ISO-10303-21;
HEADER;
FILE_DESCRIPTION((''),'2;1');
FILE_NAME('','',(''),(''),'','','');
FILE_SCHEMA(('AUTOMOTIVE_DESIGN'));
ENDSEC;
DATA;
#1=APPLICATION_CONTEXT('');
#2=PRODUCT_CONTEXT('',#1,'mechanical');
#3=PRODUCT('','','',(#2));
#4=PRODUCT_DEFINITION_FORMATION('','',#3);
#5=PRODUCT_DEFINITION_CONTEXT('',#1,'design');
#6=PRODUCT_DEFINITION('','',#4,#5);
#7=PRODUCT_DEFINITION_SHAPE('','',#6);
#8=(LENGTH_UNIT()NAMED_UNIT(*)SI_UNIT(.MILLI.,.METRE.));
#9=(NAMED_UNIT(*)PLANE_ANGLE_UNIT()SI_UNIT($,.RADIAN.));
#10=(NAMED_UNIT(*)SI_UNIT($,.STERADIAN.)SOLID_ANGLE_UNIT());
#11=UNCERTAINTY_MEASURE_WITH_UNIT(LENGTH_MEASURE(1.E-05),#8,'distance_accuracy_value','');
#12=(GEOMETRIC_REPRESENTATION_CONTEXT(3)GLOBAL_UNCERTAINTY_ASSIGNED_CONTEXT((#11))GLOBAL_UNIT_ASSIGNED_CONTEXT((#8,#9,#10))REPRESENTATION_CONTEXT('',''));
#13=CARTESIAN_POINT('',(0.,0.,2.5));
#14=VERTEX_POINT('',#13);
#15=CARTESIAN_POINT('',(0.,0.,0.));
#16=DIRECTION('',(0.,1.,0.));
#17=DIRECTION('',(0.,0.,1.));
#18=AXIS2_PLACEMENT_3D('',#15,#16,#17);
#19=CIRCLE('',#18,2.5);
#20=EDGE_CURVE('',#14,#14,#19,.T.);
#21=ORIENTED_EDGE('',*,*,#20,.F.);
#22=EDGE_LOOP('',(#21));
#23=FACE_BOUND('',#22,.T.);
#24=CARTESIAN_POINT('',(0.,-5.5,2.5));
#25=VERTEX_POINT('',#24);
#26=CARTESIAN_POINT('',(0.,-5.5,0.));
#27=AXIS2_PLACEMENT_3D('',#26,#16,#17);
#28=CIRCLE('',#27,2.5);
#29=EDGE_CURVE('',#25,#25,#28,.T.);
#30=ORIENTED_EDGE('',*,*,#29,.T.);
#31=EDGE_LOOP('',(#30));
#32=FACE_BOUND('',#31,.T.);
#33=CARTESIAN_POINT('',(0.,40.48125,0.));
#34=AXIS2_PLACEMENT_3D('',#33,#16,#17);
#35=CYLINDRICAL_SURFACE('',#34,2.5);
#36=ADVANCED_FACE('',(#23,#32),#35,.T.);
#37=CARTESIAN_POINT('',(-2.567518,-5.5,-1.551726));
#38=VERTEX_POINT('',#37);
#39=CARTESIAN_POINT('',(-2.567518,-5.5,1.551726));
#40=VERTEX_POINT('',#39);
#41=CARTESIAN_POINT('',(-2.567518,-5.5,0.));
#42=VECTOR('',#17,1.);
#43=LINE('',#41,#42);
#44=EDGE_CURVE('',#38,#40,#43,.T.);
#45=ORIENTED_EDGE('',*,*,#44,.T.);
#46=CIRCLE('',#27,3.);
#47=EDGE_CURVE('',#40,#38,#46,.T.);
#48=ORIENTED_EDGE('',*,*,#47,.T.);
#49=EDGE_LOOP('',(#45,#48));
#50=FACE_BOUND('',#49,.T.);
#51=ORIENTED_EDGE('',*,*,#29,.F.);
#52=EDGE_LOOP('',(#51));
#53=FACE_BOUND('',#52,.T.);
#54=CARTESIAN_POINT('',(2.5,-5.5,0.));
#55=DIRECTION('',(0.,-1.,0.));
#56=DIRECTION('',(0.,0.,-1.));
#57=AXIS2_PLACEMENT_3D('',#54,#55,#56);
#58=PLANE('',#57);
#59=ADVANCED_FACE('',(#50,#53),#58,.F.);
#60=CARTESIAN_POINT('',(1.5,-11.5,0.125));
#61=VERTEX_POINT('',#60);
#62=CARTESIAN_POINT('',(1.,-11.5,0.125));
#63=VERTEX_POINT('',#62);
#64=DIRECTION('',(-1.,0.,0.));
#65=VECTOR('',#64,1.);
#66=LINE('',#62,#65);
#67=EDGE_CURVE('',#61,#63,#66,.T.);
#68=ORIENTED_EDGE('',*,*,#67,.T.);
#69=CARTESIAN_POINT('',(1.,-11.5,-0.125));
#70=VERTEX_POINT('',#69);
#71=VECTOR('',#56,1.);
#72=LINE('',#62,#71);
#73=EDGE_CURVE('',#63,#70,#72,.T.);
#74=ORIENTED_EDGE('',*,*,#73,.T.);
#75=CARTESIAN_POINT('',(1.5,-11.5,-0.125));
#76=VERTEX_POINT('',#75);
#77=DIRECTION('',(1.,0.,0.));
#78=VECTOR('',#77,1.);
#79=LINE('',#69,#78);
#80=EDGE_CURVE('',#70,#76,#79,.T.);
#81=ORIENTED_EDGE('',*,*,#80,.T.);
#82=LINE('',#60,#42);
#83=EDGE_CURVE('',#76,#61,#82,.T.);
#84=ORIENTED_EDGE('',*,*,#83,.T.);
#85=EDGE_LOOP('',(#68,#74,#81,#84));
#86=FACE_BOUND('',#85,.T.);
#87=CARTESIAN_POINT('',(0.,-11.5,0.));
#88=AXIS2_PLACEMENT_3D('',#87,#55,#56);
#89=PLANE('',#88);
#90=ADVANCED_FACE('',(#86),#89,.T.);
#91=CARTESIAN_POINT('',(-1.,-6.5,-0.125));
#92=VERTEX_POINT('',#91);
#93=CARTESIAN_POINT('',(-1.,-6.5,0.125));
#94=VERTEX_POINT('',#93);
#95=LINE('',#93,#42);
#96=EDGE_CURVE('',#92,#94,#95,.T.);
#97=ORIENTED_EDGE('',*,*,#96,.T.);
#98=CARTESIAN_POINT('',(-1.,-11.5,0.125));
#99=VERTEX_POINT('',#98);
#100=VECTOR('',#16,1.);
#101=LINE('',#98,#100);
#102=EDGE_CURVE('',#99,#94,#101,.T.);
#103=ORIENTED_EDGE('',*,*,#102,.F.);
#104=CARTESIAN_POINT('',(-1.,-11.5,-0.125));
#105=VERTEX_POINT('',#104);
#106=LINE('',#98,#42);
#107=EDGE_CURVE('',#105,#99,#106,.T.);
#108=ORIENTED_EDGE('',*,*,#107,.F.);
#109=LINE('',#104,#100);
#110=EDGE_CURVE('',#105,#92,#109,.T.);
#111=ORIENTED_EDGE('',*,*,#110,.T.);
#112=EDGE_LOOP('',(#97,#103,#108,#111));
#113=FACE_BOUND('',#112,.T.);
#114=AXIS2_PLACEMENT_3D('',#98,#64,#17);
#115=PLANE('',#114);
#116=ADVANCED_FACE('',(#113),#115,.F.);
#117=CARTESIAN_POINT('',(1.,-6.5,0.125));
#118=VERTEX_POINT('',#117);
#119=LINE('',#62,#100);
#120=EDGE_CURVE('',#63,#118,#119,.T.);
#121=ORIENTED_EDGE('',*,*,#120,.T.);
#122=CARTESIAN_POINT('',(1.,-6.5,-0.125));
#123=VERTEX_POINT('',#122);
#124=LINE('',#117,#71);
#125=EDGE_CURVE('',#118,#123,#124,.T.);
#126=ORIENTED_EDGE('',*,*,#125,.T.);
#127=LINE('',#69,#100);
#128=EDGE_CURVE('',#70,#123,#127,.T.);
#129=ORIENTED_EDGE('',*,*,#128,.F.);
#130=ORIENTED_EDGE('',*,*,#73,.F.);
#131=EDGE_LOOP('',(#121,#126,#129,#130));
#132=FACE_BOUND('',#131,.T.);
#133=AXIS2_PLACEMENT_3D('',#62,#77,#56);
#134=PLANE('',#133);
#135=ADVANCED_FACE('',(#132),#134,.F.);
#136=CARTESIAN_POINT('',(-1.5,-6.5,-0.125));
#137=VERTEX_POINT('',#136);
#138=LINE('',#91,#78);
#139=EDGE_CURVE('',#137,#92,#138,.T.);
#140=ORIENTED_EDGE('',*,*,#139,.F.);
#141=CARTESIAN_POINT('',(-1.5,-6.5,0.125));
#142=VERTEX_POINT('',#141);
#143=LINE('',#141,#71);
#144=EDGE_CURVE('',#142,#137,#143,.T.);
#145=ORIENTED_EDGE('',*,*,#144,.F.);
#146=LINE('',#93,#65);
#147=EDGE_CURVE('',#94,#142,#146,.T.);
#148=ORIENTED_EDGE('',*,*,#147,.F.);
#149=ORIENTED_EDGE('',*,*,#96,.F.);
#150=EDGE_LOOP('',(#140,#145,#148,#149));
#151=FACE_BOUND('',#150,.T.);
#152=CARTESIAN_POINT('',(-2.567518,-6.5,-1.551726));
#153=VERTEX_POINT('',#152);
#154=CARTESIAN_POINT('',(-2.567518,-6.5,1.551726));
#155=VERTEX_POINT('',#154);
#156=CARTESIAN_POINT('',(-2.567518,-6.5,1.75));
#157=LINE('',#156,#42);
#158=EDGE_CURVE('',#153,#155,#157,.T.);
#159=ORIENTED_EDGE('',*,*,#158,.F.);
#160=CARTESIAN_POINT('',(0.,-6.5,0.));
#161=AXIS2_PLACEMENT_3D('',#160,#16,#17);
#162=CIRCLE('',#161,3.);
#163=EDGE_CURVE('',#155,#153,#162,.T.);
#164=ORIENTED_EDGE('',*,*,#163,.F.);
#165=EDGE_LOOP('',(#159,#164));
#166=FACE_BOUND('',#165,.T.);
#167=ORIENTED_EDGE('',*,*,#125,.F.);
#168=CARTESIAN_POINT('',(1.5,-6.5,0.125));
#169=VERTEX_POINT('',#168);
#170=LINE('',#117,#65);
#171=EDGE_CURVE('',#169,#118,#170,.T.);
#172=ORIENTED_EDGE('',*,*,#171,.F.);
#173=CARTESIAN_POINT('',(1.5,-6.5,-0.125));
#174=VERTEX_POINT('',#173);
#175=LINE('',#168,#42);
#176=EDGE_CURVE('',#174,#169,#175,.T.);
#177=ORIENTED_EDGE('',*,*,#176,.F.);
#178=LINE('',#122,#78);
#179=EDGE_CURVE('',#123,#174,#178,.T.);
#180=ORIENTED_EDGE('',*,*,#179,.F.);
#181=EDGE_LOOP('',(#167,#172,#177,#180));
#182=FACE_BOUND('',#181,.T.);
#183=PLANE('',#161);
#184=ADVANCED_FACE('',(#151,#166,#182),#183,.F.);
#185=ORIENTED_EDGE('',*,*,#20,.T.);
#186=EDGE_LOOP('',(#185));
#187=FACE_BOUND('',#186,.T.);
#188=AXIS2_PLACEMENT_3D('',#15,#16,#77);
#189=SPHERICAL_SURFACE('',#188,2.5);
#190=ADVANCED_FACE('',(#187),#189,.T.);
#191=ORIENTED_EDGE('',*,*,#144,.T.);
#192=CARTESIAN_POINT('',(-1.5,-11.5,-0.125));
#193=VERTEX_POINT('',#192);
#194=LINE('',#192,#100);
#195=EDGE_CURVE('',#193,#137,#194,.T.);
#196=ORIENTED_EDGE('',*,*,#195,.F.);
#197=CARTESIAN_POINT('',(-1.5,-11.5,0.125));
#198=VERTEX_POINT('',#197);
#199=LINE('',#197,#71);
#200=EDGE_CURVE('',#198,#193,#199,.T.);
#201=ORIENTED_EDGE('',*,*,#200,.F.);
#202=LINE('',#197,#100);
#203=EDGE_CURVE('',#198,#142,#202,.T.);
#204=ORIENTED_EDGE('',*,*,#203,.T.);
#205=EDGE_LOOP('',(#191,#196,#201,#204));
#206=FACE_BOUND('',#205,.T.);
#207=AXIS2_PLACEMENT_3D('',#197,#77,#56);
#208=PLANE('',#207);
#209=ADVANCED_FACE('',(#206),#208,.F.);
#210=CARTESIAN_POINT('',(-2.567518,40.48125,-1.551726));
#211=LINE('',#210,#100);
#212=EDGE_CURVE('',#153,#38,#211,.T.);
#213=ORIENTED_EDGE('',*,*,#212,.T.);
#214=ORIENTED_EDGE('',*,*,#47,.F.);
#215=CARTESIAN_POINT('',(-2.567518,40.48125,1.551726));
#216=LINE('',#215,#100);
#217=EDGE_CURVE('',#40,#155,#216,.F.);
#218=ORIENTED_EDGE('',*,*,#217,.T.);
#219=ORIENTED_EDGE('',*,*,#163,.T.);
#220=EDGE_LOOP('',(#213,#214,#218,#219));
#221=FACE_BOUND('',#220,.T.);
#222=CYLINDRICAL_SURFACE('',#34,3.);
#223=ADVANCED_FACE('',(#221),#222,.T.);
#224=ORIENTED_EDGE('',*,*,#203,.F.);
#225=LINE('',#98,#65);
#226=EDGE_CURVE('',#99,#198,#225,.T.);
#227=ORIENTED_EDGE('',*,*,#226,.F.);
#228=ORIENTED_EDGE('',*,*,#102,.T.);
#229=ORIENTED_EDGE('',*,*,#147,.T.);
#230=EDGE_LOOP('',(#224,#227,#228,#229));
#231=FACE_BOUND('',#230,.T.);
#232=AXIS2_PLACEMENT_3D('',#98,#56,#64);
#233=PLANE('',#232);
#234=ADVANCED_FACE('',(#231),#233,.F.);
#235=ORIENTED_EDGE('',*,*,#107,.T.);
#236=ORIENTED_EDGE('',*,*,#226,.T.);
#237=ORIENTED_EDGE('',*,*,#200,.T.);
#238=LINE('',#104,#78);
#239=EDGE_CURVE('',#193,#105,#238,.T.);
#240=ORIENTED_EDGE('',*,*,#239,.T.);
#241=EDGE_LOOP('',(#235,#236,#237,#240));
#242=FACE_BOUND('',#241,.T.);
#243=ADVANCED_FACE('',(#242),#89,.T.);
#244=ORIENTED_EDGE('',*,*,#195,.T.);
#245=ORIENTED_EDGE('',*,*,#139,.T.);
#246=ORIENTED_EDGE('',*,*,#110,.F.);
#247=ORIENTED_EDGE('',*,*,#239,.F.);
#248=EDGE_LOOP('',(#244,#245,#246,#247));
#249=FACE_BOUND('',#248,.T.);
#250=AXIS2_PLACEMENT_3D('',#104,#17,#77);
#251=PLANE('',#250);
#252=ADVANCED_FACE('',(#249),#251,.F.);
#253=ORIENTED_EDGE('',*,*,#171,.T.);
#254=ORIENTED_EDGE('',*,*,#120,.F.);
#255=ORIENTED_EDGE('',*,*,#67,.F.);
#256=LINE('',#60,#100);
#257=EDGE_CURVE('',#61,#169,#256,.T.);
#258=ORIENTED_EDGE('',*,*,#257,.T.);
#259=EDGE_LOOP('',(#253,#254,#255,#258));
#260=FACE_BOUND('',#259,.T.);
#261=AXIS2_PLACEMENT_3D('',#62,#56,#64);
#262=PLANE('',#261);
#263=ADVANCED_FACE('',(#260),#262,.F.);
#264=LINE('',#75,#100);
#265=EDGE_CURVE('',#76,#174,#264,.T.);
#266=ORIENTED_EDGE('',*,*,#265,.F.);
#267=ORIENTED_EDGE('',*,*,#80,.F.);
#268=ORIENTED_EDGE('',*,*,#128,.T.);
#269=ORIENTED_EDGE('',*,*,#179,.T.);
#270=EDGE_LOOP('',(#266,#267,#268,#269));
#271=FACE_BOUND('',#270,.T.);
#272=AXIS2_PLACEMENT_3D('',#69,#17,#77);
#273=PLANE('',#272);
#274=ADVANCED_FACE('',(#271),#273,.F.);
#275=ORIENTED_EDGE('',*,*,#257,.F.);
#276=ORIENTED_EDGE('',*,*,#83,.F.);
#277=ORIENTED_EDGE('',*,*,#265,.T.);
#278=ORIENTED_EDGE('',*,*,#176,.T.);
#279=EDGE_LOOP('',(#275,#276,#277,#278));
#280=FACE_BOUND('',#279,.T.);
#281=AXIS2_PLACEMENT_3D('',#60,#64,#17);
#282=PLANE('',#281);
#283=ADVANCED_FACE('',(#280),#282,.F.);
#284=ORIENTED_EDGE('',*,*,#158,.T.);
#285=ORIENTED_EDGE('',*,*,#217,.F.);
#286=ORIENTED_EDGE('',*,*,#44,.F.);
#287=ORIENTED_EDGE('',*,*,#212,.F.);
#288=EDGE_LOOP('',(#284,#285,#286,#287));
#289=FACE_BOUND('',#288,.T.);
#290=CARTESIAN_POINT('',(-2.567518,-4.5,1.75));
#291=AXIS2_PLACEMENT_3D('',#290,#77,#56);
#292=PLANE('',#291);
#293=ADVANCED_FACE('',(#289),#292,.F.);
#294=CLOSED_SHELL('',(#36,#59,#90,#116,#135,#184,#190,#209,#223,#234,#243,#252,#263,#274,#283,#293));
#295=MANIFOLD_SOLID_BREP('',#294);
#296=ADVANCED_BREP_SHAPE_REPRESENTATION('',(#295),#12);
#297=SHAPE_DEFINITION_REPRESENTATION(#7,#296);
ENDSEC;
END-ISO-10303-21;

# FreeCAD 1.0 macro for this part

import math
import FreeCAD as App
import Part
import Sketcher
from FreeCAD import Vector


def add_polygon(sketch, points):
    """Adds a closed chain of lines whose ends are joined by coincident constraints."""
    first, n = sketch.GeometryCount, len(points)
    for a, b in zip(points, points[1:] + points[:1]):
        sketch.addGeometry(Part.LineSegment(App.Vector(*a, 0), App.Vector(*b, 0)), False)
    for i in range(n):
        sketch.addConstraint(Sketcher.Constraint("Coincident", first + i, 2, first + (i + 1) % n, 1))

doc = App.newDocument("Part")
params = doc.addObject("Spreadsheet::Sheet", "Params")
for row, (alias, value) in enumerate([
    ("sketch1_radius", "2.5 mm"),
    ("sketch1_width", "3 mm"),
    ("sketch1_height", "9 mm"),
    ("sketch1_height2", "1 mm"),
    ("revolution_angle", "360 deg"),
    ("sketch2_width", "0.5 mm"),
    ("sketch2_height", "3.5 mm"),
    ("pocket1_length", "2 mm"),
    ("sketch3_width", "0.5 mm"),
    ("sketch3_height", "0.25 mm"),
    ("pad1_length", "5 mm"),
], start=1):
    params.set(f"A{row}", alias)
    params.set(f"B{row}", "=" + value)
    params.setAlias(f"B{row}", alias)

body = doc.addObject("PartDesign::Body", "Body")

sketch1 = body.newObject("Sketcher::SketchObject", "Sketch")
sketch1.AttachmentSupport = (doc.getObject("XY_Plane"), [""])
sketch1.MapMode = "FlatFace"
sketch1.addGeometry([
    Part.LineSegment(Vector(0, 2.5, 0), Vector(0, -6.5, 0)),
    Part.LineSegment(Vector(0, -6.5, 0), Vector(3, -6.5, 0)),
    Part.LineSegment(Vector(3, -6.5, 0), Vector(3, -5.5, 0)),
    Part.LineSegment(Vector(3, -5.5, 0), Vector(2.5, -5.5, 0)),
    Part.LineSegment(Vector(2.5, -5.5, 0), Vector(2.5, 0, 0)),
    Part.ArcOfCircle(Part.Circle(Vector(0, 0, 0), Vector(0, 0, 1), 2.5), math.radians(0), math.radians(90)),
], False)
sketch1.addConstraint([
    Sketcher.Constraint("Coincident", 0, 2, 1, 1),
    Sketcher.Constraint("Coincident", 1, 2, 2, 1),
    Sketcher.Constraint("Coincident", 2, 2, 3, 1),
    Sketcher.Constraint("Coincident", 3, 2, 4, 1),
    Sketcher.Constraint("Tangent", 4, 2, 5, 1),
    Sketcher.Constraint("Coincident", 5, 2, 0, 1),
    Sketcher.Constraint("Vertical", 0),
    Sketcher.Constraint("Horizontal", 1),
    Sketcher.Constraint("Vertical", 2),
    Sketcher.Constraint("Horizontal", 3),
    Sketcher.Constraint("Vertical", 4),
    Sketcher.Constraint("Coincident", 5, 3, -1, 1),
    Sketcher.Constraint("PointOnObject", 0, 2, -2),
    Sketcher.Constraint("Radius", 5, 2.5),
    Sketcher.Constraint("DistanceX", 1, 1, 1, 2, 3.0),
    Sketcher.Constraint("DistanceY", 0, 2, 0, 1, 9.0),
    Sketcher.Constraint("DistanceY", 2, 1, 2, 2, 1.0),
])
sketch1.setExpression("Constraints[13]", "Params.sketch1_radius")
sketch1.setExpression("Constraints[14]", "Params.sketch1_width")
sketch1.setExpression("Constraints[15]", "Params.sketch1_height")
sketch1.setExpression("Constraints[16]", "Params.sketch1_height2")
revolution = body.newObject("PartDesign::Revolution", "Revolution")
revolution.Profile = sketch1
revolution.ReferenceAxis = (sketch1, ["V_Axis"])
revolution.setExpression("Angle", "Params.revolution_angle")

sketch2 = body.newObject("Sketcher::SketchObject", "Sketch001")
sketch2.AttachmentSupport = (doc.getObject("XZ_Plane"), [""])
sketch2.MapMode = "FlatFace"
sketch2.AttachmentOffset = App.Placement(Vector(0, 0, 6.5), App.Rotation())
add_polygon(sketch2, [(-3.1, 1.8), (-3.1, -1.8), (-2.6, -1.8), (-2.6, 1.8)])
sketch2.addConstraint([
    Sketcher.Constraint("Vertical", 0),
    Sketcher.Constraint("Horizontal", 1),
    Sketcher.Constraint("Vertical", 2),
    Sketcher.Constraint("Horizontal", 3),
    Sketcher.Constraint("DistanceX", 1, 1, 1, 2, 0.5),
    Sketcher.Constraint("DistanceY", 0, 2, 0, 1, 3.5),
    Sketcher.Constraint("DistanceY", 0, 2, -1, 1, 1.75),
    Sketcher.Constraint("DistanceX", 0, 2, -1, 1, 3.067518),
])
sketch2.setExpression("Constraints[8]", "Params.sketch2_width")
sketch2.setExpression("Constraints[9]", "Params.sketch2_height")
pocket1 = body.newObject("PartDesign::Pocket", "Pocket")
pocket1.Profile = sketch2
pocket1.setExpression("Length", "Params.pocket1_length")

sketch3 = body.newObject("Sketcher::SketchObject", "Sketch002")
sketch3.AttachmentSupport = (doc.getObject("XZ_Plane"), [""])
sketch3.MapMode = "FlatFace"
sketch3.AttachmentOffset = App.Placement(Vector(0, 0, 6.5), App.Rotation())
add_polygon(sketch3, [(1, 0.12), (1, -0.12), (1.5, -0.12), (1.5, 0.12)])
add_polygon(sketch3, [(-1.5, 0.12), (-1.5, -0.12), (-1, -0.12), (-1, 0.12)])
sketch3.addConstraint([
    Sketcher.Constraint("Vertical", 0),
    Sketcher.Constraint("Horizontal", 1),
    Sketcher.Constraint("Vertical", 2),
    Sketcher.Constraint("Horizontal", 3),
    Sketcher.Constraint("Vertical", 4),
    Sketcher.Constraint("Horizontal", 5),
    Sketcher.Constraint("Vertical", 6),
    Sketcher.Constraint("Horizontal", 7),
    Sketcher.Constraint("Symmetric", 2, 2, 4, 2, -1, 1),
    Sketcher.Constraint("Symmetric", 0, 2, 6, 2, -1, 1),
    Sketcher.Constraint("Horizontal", 1, 2, 4, 2),
    Sketcher.Constraint("DistanceX", 1, 1, 1, 2, 0.5),
    Sketcher.Constraint("DistanceX", -1, 1, 0, 2, 1.0),
    Sketcher.Constraint("DistanceY", 0, 2, 0, 1, 0.25),
])
sketch3.setExpression("Constraints[19]", "Params.sketch3_width")
sketch3.setExpression("Constraints[21]", "Params.sketch3_height")
pad1 = body.newObject("PartDesign::Pad", "Pad")
pad1.Profile = sketch3
pad1.setExpression("Length", "Params.pad1_length")

doc.recompute()
